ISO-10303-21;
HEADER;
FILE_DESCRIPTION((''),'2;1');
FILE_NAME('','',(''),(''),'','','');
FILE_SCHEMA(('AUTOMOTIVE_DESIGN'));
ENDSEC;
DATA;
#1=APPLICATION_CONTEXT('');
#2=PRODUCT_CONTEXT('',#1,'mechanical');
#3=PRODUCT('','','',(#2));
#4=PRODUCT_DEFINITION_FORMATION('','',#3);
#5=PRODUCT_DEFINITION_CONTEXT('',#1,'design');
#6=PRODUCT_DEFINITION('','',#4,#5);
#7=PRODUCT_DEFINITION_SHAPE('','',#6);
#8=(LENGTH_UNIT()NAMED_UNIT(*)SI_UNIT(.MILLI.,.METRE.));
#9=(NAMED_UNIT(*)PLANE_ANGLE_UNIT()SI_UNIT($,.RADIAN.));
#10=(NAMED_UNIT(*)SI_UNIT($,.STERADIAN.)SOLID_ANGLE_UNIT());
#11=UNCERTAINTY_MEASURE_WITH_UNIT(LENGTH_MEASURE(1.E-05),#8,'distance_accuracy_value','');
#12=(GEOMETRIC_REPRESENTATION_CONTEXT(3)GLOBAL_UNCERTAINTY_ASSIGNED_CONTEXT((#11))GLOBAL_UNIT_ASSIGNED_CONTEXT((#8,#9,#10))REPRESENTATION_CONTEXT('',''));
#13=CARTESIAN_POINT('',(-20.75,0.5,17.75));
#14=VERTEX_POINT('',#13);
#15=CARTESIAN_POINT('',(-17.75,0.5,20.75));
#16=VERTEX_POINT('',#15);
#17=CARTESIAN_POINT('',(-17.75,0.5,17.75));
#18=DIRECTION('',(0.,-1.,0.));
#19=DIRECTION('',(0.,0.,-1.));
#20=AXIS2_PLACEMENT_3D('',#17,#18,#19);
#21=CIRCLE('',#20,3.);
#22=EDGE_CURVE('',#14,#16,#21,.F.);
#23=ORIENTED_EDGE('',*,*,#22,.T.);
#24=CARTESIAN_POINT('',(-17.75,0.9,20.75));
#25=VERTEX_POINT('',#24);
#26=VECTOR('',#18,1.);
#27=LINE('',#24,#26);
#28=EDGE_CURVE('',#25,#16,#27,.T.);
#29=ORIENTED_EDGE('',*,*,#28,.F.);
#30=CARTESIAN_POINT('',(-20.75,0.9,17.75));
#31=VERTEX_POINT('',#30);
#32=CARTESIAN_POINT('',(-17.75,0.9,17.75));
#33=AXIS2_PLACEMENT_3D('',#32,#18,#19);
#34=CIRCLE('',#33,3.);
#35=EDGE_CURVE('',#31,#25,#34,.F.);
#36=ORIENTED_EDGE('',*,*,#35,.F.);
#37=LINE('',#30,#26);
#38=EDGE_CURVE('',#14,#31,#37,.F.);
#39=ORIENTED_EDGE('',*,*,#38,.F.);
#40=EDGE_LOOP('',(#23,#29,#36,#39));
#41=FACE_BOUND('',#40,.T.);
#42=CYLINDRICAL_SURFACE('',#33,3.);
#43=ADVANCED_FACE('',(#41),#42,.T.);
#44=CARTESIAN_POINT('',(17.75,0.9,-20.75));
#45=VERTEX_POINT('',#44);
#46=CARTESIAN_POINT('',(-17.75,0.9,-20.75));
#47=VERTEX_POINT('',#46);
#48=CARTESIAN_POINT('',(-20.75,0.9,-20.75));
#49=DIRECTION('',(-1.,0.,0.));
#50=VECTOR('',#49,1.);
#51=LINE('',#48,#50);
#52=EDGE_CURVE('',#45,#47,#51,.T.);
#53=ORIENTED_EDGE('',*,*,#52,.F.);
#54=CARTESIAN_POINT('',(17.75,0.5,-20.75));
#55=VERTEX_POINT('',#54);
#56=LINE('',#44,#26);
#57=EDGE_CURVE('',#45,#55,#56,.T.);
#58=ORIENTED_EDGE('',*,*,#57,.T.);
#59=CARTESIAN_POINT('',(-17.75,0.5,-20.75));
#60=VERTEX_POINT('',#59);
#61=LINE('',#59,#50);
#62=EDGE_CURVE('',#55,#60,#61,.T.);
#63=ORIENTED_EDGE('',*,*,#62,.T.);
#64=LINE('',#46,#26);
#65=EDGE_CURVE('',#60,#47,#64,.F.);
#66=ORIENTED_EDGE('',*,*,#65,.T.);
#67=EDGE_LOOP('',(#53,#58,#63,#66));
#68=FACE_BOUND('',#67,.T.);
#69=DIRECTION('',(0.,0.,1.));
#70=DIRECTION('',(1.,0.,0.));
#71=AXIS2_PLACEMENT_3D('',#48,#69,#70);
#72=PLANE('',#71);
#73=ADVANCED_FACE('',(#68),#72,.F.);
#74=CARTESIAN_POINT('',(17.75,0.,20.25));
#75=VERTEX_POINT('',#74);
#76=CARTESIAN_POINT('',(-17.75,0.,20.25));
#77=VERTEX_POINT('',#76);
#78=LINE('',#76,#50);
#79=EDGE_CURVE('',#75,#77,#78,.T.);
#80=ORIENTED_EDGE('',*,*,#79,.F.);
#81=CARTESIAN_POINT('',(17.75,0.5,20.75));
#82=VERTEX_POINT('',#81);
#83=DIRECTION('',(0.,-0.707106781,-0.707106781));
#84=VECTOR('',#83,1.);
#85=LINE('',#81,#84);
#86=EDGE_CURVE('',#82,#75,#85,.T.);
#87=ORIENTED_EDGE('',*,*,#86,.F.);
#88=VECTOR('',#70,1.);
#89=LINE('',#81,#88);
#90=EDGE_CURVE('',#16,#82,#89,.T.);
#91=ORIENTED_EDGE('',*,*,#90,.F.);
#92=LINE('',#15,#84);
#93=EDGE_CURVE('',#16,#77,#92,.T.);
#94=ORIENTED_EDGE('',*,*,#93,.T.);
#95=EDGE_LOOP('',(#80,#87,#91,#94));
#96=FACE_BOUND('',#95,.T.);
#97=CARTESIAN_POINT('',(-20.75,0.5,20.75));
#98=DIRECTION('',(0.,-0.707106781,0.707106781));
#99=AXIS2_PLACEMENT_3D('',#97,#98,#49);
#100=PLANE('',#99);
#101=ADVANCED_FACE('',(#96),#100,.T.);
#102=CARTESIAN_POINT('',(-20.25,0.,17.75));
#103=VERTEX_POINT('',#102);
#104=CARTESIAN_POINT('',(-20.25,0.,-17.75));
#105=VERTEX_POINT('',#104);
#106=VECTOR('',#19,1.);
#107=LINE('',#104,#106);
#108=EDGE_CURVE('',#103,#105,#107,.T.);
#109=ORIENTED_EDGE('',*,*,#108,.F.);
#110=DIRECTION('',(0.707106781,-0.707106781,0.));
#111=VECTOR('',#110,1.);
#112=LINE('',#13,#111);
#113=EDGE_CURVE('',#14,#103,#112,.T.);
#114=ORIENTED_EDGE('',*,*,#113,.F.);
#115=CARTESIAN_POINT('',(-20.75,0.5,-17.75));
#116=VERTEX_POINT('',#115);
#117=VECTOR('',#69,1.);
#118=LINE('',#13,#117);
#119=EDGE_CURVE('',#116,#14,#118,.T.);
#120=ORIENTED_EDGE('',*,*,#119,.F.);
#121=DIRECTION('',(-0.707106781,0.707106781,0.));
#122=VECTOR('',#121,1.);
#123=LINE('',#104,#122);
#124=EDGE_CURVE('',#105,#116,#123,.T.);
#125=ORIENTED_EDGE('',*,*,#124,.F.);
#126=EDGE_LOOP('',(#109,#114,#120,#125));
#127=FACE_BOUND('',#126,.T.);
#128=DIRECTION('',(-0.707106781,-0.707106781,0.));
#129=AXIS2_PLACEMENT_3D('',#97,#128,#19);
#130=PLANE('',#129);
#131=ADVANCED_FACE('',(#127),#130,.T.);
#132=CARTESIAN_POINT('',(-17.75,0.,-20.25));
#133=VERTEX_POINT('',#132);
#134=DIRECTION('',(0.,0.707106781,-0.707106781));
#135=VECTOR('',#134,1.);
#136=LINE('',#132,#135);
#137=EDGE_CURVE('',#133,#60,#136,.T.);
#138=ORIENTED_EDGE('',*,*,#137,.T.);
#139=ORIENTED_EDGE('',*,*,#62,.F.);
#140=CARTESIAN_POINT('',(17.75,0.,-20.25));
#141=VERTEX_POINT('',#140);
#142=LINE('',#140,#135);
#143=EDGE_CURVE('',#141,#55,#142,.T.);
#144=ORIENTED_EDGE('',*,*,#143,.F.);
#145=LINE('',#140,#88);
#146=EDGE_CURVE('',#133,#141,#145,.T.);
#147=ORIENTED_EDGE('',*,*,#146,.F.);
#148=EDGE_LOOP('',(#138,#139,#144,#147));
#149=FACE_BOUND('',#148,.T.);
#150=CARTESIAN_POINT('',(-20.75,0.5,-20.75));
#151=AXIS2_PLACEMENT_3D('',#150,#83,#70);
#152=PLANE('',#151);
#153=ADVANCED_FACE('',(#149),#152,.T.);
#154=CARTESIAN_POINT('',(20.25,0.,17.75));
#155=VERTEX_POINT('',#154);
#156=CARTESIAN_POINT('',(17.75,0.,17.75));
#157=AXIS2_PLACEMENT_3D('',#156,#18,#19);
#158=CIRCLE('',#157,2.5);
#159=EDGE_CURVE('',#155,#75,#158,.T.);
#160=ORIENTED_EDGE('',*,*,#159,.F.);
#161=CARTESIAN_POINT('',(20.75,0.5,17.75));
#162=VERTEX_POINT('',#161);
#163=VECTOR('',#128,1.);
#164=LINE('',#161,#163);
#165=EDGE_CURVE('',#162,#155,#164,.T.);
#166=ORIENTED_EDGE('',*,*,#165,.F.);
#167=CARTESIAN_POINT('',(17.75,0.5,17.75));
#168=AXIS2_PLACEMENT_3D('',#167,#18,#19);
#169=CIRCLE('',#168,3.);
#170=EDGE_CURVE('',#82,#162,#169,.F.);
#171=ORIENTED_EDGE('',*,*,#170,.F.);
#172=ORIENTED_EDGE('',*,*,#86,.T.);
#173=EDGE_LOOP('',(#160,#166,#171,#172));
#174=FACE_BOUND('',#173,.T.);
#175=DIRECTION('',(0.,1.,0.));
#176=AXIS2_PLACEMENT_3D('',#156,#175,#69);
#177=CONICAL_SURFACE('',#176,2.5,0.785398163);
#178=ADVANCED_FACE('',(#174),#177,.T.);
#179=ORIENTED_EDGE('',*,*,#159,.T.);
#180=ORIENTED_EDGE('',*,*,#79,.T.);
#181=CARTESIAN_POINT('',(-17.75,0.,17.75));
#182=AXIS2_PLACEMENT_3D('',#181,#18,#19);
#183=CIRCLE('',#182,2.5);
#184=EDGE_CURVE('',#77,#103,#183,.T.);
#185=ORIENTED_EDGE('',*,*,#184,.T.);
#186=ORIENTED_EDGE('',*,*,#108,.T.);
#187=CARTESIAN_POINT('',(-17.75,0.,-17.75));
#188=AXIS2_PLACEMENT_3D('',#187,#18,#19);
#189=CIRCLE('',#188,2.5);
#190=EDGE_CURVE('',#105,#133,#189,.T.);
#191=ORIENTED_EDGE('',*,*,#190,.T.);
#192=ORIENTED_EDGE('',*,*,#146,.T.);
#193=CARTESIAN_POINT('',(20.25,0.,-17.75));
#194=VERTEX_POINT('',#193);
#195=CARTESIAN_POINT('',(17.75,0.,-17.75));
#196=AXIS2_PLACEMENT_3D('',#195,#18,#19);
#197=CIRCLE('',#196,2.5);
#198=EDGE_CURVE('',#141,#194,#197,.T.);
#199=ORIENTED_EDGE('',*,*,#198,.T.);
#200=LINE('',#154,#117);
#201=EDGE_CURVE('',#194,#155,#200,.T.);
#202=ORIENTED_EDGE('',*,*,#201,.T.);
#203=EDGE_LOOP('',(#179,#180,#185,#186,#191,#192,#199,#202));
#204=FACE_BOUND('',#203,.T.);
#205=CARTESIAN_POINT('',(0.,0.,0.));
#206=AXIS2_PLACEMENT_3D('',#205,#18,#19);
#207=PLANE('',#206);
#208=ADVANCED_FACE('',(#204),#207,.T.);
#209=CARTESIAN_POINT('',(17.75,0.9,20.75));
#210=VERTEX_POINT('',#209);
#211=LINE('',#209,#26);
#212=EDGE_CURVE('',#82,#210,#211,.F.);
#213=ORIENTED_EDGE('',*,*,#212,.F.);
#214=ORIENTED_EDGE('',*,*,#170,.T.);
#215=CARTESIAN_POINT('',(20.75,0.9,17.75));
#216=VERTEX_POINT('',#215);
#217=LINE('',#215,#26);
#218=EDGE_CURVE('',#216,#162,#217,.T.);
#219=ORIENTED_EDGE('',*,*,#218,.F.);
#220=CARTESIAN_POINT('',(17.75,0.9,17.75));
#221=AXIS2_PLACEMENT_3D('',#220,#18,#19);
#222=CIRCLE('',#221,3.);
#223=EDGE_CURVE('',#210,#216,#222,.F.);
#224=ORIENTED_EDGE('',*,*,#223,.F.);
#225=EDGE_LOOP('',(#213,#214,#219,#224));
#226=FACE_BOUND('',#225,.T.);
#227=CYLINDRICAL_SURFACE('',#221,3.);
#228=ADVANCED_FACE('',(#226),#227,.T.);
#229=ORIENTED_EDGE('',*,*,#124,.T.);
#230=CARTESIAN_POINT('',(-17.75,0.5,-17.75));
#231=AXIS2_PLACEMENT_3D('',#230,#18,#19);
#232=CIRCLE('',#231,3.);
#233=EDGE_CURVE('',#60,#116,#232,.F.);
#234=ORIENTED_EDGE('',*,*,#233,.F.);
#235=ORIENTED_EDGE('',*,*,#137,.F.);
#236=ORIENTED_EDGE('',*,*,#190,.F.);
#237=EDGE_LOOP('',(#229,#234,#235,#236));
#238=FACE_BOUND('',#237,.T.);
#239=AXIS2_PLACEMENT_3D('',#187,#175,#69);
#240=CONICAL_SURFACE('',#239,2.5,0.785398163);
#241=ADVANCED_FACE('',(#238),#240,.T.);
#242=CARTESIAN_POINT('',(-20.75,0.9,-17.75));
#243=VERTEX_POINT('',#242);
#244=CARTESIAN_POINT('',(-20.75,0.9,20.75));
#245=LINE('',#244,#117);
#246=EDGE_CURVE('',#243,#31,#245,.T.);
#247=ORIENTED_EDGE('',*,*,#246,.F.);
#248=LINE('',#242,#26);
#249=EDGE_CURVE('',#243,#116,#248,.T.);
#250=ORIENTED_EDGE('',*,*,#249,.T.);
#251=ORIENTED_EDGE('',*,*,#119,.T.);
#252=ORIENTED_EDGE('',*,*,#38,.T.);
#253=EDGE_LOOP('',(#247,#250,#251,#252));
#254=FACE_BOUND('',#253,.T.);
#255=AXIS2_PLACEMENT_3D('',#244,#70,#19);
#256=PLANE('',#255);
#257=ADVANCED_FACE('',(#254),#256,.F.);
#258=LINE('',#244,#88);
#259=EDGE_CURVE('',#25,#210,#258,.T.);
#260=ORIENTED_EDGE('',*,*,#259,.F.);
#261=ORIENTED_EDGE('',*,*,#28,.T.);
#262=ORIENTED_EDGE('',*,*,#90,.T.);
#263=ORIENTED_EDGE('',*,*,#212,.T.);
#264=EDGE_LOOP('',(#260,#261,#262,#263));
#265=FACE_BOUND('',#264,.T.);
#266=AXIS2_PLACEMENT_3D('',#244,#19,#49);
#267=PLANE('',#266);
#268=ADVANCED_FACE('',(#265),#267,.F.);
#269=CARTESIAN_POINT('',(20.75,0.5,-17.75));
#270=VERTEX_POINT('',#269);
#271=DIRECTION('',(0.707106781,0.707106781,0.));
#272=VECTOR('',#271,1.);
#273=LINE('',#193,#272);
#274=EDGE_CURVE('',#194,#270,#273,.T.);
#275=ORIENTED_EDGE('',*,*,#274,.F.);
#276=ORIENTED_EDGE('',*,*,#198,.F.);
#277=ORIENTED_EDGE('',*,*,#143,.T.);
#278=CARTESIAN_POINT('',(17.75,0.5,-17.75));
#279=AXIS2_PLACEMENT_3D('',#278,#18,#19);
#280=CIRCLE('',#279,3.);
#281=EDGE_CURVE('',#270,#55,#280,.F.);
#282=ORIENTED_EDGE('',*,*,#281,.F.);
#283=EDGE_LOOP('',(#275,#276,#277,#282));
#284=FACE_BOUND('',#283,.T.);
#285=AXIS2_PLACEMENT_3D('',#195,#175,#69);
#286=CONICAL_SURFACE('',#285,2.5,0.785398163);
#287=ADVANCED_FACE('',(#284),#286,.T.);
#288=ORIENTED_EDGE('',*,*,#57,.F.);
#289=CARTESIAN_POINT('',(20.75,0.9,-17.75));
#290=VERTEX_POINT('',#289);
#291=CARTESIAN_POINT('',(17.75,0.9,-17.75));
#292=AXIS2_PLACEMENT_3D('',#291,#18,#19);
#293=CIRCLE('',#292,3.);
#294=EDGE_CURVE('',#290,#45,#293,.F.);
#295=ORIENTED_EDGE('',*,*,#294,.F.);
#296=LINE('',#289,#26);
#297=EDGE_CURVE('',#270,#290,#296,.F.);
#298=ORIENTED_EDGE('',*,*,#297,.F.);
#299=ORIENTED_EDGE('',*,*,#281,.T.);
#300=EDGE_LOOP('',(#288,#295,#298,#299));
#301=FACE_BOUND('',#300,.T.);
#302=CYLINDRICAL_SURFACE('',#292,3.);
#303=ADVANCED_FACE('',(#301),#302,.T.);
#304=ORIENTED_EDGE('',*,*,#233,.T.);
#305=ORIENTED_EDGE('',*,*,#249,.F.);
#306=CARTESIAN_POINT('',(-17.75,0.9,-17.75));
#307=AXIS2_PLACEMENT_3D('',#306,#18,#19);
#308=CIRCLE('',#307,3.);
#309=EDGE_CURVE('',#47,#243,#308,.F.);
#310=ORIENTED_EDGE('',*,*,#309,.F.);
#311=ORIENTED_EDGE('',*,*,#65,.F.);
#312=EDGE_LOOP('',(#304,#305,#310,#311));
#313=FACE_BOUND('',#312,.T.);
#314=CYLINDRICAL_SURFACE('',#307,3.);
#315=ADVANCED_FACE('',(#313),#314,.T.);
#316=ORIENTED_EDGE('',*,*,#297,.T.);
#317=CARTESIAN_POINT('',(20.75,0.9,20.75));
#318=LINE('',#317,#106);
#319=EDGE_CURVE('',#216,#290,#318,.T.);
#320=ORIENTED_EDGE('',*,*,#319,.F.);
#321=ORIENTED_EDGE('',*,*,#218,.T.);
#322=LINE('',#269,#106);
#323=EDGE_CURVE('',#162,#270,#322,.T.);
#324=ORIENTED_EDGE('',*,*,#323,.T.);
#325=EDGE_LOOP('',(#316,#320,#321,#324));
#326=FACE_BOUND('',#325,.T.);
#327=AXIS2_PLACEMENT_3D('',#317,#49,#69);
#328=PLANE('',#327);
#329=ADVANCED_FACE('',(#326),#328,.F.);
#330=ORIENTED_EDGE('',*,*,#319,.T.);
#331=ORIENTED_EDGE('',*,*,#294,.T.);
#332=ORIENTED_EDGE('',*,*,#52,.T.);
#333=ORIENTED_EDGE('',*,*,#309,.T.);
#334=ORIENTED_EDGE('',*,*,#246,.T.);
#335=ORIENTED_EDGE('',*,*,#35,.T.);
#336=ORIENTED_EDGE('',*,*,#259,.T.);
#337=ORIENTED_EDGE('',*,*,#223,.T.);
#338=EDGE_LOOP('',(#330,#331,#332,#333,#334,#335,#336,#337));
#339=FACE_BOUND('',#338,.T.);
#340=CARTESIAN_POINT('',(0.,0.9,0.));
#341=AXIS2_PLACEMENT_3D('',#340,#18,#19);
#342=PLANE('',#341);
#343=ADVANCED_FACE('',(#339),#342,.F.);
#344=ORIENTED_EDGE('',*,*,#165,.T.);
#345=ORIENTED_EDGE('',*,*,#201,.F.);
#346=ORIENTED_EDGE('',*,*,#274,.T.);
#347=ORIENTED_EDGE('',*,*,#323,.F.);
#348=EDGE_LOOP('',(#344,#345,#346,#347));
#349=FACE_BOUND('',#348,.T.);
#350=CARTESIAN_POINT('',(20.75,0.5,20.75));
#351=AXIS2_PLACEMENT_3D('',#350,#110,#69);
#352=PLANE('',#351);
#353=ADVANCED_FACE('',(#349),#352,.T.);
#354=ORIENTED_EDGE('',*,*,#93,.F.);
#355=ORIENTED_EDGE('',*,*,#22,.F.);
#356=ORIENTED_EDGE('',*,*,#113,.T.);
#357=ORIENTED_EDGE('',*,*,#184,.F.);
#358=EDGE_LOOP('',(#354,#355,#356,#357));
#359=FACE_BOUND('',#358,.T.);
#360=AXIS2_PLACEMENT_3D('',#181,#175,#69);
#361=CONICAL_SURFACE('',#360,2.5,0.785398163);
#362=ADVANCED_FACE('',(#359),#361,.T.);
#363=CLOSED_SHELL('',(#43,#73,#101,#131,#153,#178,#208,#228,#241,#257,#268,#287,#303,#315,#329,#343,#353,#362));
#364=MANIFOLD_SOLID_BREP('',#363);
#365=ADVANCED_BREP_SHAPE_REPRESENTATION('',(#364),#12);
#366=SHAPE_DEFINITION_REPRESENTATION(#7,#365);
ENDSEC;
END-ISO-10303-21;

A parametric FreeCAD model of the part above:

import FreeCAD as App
import Part
import Sketcher
Q = App.Units.Quantity


def edges_at(feature, points):
    """Names of the edges that pass closest to the given points."""
    edges = feature.Shape.Edges
    near = lambda p: min(range(len(edges)), key=lambda i: edges[i].distToShape(Part.Vertex(*p))[0])
    return sorted({f"Edge{near(p) + 1}" for p in points})

doc = App.newDocument("Part")
body = doc.addObject("PartDesign::Body", "Body")

sketch1 = doc.addObject("Sketcher::SketchObject", "Sketch")
body.addObject(sketch1)
sketch1.AttachmentSupport = (doc.XZ_Plane, [""])
sketch1.MapMode = "FlatFace"
sketch1.addGeometry(Part.LineSegment(App.Vector(-20.75, -20.75, 0), App.Vector(-20.75, 20.75, 0)), False)
sketch1.addGeometry(Part.LineSegment(App.Vector(-20.75, 20.75, 0), App.Vector(20.75, 20.75, 0)), False)
sketch1.addGeometry(Part.LineSegment(App.Vector(20.75, 20.75, 0), App.Vector(20.75, -20.75, 0)), False)
sketch1.addGeometry(Part.LineSegment(App.Vector(20.75, -20.75, 0), App.Vector(-20.75, -20.75, 0)), False)
sketch1.addConstraint(Sketcher.Constraint("Coincident", 0, 2, 1, 1))
sketch1.addConstraint(Sketcher.Constraint("Coincident", 1, 2, 2, 1))
sketch1.addConstraint(Sketcher.Constraint("Coincident", 2, 2, 3, 1))
sketch1.addConstraint(Sketcher.Constraint("Coincident", 3, 2, 0, 1))
sketch1.addConstraint(Sketcher.Constraint("Vertical", 0))
sketch1.addConstraint(Sketcher.Constraint("Horizontal", 1))
sketch1.addConstraint(Sketcher.Constraint("Vertical", 2))
sketch1.addConstraint(Sketcher.Constraint("Horizontal", 3))
sketch1.addConstraint(Sketcher.Constraint("Symmetric", 0, 2, 2, 2, -1, 1))
sketch1.addConstraint(Sketcher.Constraint("Equal", 3, 0))
sketch1.addConstraint(Sketcher.Constraint("DistanceX", 1, 1, 1, 2, Q("41.5 mm")))
pad1 = doc.addObject("PartDesign::Pad", "Pad")
body.addObject(pad1)
pad1.Profile = sketch1
pad1.Length = 0.9
pad1.Reversed = True
doc.recompute()

fillet = doc.addObject("PartDesign::Fillet", "Fillet")
body.addObject(fillet)
fillet.Base = (pad1, edges_at(pad1, [
    (20.75, 0.45, 20.75),
    (-20.75, 0.45, 20.75),
    (-20.75, 0.45, -20.75),
    (20.75, 0.45, -20.75),
]))
fillet.Radius = 3
doc.recompute()

chamfer = doc.addObject("PartDesign::Chamfer", "Chamfer")
body.addObject(chamfer)
chamfer.Base = (fillet, edges_at(fillet, [
    (-20.75, 0, 0),
    (20.75, 0, 0),
    (0, 0, 20.75),
    (0, 0, -20.75),
    (19.871, 0, 19.871),
    (19.871, 0, -19.871),
    (-19.871, 0, 19.871),
    (-19.871, 0, -19.871),
]))
chamfer.Size = 0.5

doc.recompute()
